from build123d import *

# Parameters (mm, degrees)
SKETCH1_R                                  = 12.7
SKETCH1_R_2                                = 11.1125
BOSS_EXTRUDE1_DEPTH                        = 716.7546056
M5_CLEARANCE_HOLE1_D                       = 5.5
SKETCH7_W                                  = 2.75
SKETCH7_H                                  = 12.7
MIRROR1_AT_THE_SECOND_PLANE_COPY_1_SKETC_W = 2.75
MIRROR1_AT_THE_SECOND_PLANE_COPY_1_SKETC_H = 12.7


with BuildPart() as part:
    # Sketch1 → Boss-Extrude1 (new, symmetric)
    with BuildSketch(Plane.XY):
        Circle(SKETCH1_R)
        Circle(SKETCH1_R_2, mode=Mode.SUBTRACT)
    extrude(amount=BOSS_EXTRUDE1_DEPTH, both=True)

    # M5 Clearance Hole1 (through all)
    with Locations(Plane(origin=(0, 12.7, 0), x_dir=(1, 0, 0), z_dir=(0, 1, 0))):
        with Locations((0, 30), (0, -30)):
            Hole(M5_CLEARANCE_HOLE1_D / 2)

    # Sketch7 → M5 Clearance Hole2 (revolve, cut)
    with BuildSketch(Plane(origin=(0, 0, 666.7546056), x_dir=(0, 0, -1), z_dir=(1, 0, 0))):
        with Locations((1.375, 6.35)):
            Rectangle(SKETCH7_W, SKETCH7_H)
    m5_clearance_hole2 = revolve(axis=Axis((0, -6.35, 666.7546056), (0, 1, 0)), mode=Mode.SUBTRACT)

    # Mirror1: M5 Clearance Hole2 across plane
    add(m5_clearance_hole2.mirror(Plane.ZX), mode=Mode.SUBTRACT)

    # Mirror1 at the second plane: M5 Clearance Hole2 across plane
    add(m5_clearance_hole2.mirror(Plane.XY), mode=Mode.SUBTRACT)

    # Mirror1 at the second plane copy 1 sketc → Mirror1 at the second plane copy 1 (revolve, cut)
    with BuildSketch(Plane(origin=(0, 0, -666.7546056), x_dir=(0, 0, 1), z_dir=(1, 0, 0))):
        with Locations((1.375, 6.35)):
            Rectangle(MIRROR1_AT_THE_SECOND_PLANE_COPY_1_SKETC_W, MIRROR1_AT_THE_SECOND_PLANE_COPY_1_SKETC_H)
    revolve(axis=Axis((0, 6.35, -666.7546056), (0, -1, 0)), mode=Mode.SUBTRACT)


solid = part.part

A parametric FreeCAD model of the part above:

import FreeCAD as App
import Part
import Sketcher
Q = App.Units.Quantity

doc = App.newDocument("Part")
body = doc.addObject("PartDesign::Body", "Body")

# Sketch on XY plane
sketch1 = body.newObject("Sketcher::SketchObject", "Sketch")
sketch1.AttachmentSupport = (doc.getObject("XY_Plane"), [""])
sketch1.MapMode = "FlatFace"
sketch1.addGeometry([
    Part.Circle(App.Vector(0, 0, 0), App.Vector(0, 0, 1), 13),
    Part.Circle(App.Vector(0, 0, 0), App.Vector(0, 0, 1), 11),
], False)
sketch1.addConstraint([
    Sketcher.Constraint("Coincident", 0, 3, -1, 1),
    Sketcher.Constraint("Coincident", 1, 3, -1, 1),
    Sketcher.Constraint("Diameter", 0, Q("1 in")),
    Sketcher.Constraint("Diameter", 1, Q("0.875 in")),
])
pad1 = body.newObject("PartDesign::Pad", "Pad")
pad1.Profile = sketch1
pad1.Length = 1433.509211
pad1.Midplane = True

# Sketch on XZ plane
sketch2 = body.newObject("Sketcher::SketchObject", "Sketch001")
sketch2.AttachmentSupport = (doc.getObject("XZ_Plane"), [""])
sketch2.MapMode = "FlatFace"
sketch2.AttachmentOffset = App.Placement(App.Vector(0, 0, -0.5 * 25.4), App.Rotation())
sketch2.addGeometry([
    Part.Circle(App.Vector(0, -30, 0), App.Vector(0, 0, 1), 2.8),
    Part.Circle(App.Vector(0, 30, 0), App.Vector(0, 0, 1), 2.8),
], False)
sketch2.addConstraint([
    Sketcher.Constraint("Equal", 0, 1),
    Sketcher.Constraint("Symmetric", 0, 3, 1, 3, -1, 1),
    Sketcher.Constraint("PointOnObject", 0, 3, -2),
    Sketcher.Constraint("Diameter", 0, Q("5.5 mm")),
    Sketcher.Constraint("DistanceY", 0, 3, -1, 1, Q("30 mm")),
])
doc.recompute()
hole = body.newObject("PartDesign::Hole", "Hole")
hole.Profile = sketch2
hole.ThreadType = "None"
hole.Diameter = 5.5
hole.DepthType = "ThroughAll"
hole.Reversed = True

# Sketch on YZ plane
sketch3 = body.newObject("Sketcher::SketchObject", "Sketch002")
sketch3.AttachmentSupport = (doc.getObject("YZ_Plane"), [""])
sketch3.MapMode = "FlatFace"
sketch3.addGeometry([
    Part.LineSegment(App.Vector(12.7, 666.8, 0), App.Vector(0, 666.8, 0)),
    Part.LineSegment(App.Vector(0, 666.8, 0), App.Vector(0, 664, 0)),
    Part.LineSegment(App.Vector(0, 664, 0), App.Vector(12.7, 664, 0)),
    Part.LineSegment(App.Vector(12.7, 664, 0), App.Vector(12.7, 666.8, 0)),
], False)
sketch3.addGeometry(Part.LineSegment(App.Vector(0, 666.8, 0), App.Vector(12.7, 666.8, 0)), True)  # axis
sketch3.addConstraint([
    Sketcher.Constraint("Coincident", 0, 2, 1, 1),
    Sketcher.Constraint("Coincident", 1, 2, 2, 1),
    Sketcher.Constraint("Coincident", 2, 2, 3, 1),
    Sketcher.Constraint("Coincident", 3, 2, 0, 1),
    Sketcher.Constraint("Horizontal", 0),
    Sketcher.Constraint("Vertical", 1),
    Sketcher.Constraint("Horizontal", 2),
    Sketcher.Constraint("Vertical", 3),
    Sketcher.Constraint("Horizontal", 4),
    Sketcher.Constraint("Coincident", 4, 1, 0, 2),
    Sketcher.Constraint("PointOnObject", 0, 2, -2),
    Sketcher.Constraint("Vertical", 2, 2, 4, 2),
    Sketcher.Constraint("DistanceX", 0, 2, 0, 1, Q("0.5 in")),
    Sketcher.Constraint("DistanceY", 1, 2, 1, 1, Q("2.75 mm")),
    Sketcher.Constraint("DistanceY", -1, 1, 0, 2, Q("666.754606 mm")),
])
groove = body.newObject("PartDesign::Groove", "Groove")
groove.Profile = sketch3
groove.ReferenceAxis = (sketch3, ["Axis0"])
groove.Angle = 360
doc.recompute()

mirrored = body.newObject("PartDesign::Mirrored", "Mirrored")
mirrored.Originals = [groove]
mirrored.MirrorPlane = (doc.getObject("XZ_Plane"), [""])
body.Tip = mirrored
doc.recompute()

mirrored2 = body.newObject("PartDesign::Mirrored", "Mirrored001")
mirrored2.Originals = [groove]
mirrored2.MirrorPlane = (doc.getObject("XY_Plane"), [""])
body.Tip = mirrored2

# Sketch on YZ plane
sketch4 = body.newObject("Sketcher::SketchObject", "Sketch003")
sketch4.AttachmentSupport = (doc.getObject("YZ_Plane"), [""])
sketch4.MapMode = "FlatFace"
sketch4.addGeometry([
    Part.LineSegment(App.Vector(-12.7, -666.8, 0), App.Vector(0, -666.8, 0)),
    Part.LineSegment(App.Vector(0, -666.8, 0), App.Vector(0, -664, 0)),
    Part.LineSegment(App.Vector(0, -664, 0), App.Vector(-12.7, -664, 0)),
    Part.LineSegment(App.Vector(-12.7, -664, 0), App.Vector(-12.7, -666.8, 0)),
], False)
sketch4.addGeometry(Part.LineSegment(App.Vector(0, -666.8, 0), App.Vector(-12.7, -666.8, 0)), True)  # axis
sketch4.addConstraint([
    Sketcher.Constraint("Coincident", 0, 2, 1, 1),
    Sketcher.Constraint("Coincident", 1, 2, 2, 1),
    Sketcher.Constraint("Coincident", 2, 2, 3, 1),
    Sketcher.Constraint("Coincident", 3, 2, 0, 1),
    Sketcher.Constraint("Horizontal", 0),
    Sketcher.Constraint("Vertical", 1),
    Sketcher.Constraint("Horizontal", 2),
    Sketcher.Constraint("Vertical", 3),
    Sketcher.Constraint("Horizontal", 4),
    Sketcher.Constraint("Coincident", 4, 1, 0, 2),
    Sketcher.Constraint("PointOnObject", 0, 2, -2),
    Sketcher.Constraint("Vertical", 2, 2, 4, 2),
    Sketcher.Constraint("DistanceX", 0, 1, 0, 2, Q("0.5 in")),
    Sketcher.Constraint("DistanceY", 1, 1, 1, 2, Q("2.75 mm")),
    Sketcher.Constraint("DistanceY", 0, 2, -1, 1, Q("666.754606 mm")),
])
groove2 = body.newObject("PartDesign::Groove", "Groove001")
groove2.Profile = sketch4
groove2.ReferenceAxis = (sketch4, ["Axis0"])
groove2.Angle = 360

doc.recompute()
